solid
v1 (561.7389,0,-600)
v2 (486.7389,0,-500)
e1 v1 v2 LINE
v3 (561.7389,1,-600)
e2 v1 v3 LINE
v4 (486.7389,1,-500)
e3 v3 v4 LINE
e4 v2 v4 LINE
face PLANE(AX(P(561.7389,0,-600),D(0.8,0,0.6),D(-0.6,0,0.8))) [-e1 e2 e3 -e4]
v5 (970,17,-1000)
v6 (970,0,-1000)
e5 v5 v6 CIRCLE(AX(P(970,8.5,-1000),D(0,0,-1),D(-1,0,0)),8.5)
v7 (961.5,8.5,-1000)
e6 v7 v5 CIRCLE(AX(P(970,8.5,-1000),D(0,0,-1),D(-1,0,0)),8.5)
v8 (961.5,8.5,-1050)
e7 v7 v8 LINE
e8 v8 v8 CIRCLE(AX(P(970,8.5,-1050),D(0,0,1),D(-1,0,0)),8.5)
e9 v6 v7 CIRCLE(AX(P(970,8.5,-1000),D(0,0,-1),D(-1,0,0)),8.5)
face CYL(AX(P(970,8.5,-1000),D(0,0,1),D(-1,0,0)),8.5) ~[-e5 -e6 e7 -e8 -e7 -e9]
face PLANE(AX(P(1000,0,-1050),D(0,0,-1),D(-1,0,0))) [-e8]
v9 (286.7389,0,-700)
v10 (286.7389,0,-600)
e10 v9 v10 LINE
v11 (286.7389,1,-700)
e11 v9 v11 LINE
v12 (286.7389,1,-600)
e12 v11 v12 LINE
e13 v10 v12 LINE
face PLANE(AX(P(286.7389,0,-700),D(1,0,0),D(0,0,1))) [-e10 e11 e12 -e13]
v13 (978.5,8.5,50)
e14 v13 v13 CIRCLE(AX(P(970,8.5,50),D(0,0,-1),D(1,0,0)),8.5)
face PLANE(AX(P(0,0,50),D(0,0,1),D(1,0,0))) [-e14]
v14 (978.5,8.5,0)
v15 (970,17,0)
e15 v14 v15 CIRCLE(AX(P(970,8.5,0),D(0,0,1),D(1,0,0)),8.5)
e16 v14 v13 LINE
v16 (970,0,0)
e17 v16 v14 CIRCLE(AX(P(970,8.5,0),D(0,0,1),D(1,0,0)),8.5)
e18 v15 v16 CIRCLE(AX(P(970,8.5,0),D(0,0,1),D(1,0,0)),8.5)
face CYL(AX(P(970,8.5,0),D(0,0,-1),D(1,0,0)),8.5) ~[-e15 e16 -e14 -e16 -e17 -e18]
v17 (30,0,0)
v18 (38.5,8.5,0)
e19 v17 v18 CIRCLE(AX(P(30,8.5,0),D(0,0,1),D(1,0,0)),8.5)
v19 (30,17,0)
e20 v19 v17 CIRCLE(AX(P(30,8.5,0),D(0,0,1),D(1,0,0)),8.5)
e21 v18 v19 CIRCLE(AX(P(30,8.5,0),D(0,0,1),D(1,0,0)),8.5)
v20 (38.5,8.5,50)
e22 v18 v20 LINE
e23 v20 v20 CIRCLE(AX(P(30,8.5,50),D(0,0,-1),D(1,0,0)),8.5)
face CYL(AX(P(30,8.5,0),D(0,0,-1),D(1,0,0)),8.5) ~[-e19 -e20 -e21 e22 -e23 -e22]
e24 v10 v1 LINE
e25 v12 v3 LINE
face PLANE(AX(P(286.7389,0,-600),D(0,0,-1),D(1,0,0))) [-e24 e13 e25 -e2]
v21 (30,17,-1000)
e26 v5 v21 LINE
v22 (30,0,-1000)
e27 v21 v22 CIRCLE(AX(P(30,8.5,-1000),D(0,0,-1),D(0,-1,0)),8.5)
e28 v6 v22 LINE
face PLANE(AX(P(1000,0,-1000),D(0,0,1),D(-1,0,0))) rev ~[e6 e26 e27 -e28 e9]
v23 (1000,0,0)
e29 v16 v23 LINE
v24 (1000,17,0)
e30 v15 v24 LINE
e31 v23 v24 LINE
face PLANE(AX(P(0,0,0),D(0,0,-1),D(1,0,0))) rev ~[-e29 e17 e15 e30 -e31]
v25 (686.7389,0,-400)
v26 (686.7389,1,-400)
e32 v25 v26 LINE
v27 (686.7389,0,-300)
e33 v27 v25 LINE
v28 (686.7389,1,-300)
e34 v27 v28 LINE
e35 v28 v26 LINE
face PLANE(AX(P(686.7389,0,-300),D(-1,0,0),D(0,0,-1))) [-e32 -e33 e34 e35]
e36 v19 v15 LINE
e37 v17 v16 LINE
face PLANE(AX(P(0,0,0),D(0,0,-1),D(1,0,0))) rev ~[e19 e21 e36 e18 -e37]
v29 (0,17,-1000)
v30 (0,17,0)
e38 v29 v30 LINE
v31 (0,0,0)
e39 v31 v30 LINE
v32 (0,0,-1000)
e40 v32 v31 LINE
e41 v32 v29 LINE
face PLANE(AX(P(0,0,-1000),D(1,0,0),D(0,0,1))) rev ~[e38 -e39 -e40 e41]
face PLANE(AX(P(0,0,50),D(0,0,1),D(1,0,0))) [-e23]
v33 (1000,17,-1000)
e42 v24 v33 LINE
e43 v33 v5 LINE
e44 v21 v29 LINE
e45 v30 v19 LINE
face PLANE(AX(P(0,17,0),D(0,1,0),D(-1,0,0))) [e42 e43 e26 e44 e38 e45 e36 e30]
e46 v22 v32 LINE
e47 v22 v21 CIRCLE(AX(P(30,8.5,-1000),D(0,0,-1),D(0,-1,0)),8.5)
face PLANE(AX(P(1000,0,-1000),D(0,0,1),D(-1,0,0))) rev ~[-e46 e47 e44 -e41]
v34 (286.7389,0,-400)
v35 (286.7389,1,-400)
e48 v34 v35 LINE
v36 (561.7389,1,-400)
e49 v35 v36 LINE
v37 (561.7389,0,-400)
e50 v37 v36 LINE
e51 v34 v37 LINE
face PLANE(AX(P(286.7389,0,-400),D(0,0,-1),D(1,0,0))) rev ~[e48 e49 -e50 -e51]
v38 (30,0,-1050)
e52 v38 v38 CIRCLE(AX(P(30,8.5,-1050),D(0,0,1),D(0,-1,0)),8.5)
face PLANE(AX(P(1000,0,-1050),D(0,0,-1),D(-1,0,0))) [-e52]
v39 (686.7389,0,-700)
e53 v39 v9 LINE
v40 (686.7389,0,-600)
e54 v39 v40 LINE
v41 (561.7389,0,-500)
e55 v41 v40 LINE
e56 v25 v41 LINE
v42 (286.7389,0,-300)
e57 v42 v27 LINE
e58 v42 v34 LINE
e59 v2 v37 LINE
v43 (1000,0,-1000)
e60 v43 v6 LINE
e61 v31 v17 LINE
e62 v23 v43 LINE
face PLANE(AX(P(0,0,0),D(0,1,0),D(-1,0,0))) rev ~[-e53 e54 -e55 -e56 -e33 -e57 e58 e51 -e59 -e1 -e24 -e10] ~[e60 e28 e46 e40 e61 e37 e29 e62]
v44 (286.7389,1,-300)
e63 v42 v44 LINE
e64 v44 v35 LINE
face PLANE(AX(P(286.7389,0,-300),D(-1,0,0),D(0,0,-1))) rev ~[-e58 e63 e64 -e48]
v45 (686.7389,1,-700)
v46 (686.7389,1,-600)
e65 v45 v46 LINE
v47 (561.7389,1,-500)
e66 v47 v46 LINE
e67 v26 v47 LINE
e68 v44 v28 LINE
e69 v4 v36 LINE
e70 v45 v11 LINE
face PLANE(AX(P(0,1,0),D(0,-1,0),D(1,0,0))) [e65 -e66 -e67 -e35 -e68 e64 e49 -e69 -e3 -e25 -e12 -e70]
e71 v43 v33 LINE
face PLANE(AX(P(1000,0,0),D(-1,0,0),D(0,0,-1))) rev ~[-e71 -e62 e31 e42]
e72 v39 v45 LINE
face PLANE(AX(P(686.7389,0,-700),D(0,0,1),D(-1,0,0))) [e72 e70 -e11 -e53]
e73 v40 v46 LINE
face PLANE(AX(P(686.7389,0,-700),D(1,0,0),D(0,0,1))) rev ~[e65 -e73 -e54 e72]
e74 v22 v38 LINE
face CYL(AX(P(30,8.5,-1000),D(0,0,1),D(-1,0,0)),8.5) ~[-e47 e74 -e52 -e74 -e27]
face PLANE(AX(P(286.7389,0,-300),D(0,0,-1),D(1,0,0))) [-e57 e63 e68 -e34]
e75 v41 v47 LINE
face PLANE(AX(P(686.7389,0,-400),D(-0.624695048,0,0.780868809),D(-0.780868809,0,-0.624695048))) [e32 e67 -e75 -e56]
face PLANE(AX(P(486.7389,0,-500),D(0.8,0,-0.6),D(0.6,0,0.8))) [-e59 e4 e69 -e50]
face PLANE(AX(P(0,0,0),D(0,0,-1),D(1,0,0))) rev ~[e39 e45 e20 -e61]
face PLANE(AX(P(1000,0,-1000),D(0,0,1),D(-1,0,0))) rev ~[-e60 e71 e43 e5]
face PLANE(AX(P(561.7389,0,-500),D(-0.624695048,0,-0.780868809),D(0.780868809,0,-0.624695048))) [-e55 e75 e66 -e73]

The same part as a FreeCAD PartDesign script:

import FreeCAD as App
import Part
import Sketcher
Q = App.Units.Quantity

doc = App.newDocument("Part")
body = doc.addObject("PartDesign::Body", "Body")

# Sketch on XZ plane
sketch1 = doc.addObject("Sketcher::SketchObject", "Sketch")
body.addObject(sketch1)
sketch1.AttachmentSupport = (doc.XZ_Plane, [""])
sketch1.MapMode = "FlatFace"
sketch1.addGeometry(Part.LineSegment(App.Vector(0, -1000, 0), App.Vector(0, 0, 0)), False)
sketch1.addGeometry(Part.LineSegment(App.Vector(0, 0, 0), App.Vector(1000, 0, 0)), False)
sketch1.addGeometry(Part.LineSegment(App.Vector(1000, 0, 0), App.Vector(1000, -1000, 0)), False)
sketch1.addGeometry(Part.LineSegment(App.Vector(1000, -1000, 0), App.Vector(0, -1000, 0)), False)
sketch1.addConstraint(Sketcher.Constraint("Coincident", 0, 2, 1, 1))
sketch1.addConstraint(Sketcher.Constraint("Coincident", 1, 2, 2, 1))
sketch1.addConstraint(Sketcher.Constraint("Coincident", 2, 2, 3, 1))
sketch1.addConstraint(Sketcher.Constraint("Coincident", 3, 2, 0, 1))
sketch1.addConstraint(Sketcher.Constraint("Vertical", 0))
sketch1.addConstraint(Sketcher.Constraint("Horizontal", 1))
sketch1.addConstraint(Sketcher.Constraint("Vertical", 2))
sketch1.addConstraint(Sketcher.Constraint("Horizontal", 3))
sketch1.addConstraint(Sketcher.Constraint("Coincident", 0, 2, -1, 1))
sketch1.addConstraint(Sketcher.Constraint("Equal", 3, 0))
sketch1.addConstraint(Sketcher.Constraint("DistanceX", 1, 1, 1, 2, Q("1000 mm")))
pad1 = doc.addObject("PartDesign::Pad", "Pad")
body.addObject(pad1)
pad1.Profile = sketch1
pad1.Length = 17
pad1.Reversed = True

# Sketch on XZ plane
sketch2 = doc.addObject("Sketcher::SketchObject", "Sketch001")
body.addObject(sketch2)
sketch2.AttachmentSupport = (doc.XZ_Plane, [""])
sketch2.MapMode = "FlatFace"
sketch2.addGeometry(Part.LineSegment(App.Vector(687, -300, 0), App.Vector(287, -300, 0)), False)
sketch2.addGeometry(Part.LineSegment(App.Vector(287, -300, 0), App.Vector(287, -400, 0)), False)
sketch2.addGeometry(Part.LineSegment(App.Vector(287, -400, 0), App.Vector(562, -400, 0)), False)
sketch2.addGeometry(Part.LineSegment(App.Vector(562, -400, 0), App.Vector(487, -500, 0)), False)
sketch2.addGeometry(Part.LineSegment(App.Vector(487, -500, 0), App.Vector(562, -600, 0)), False)
sketch2.addGeometry(Part.LineSegment(App.Vector(562, -600, 0), App.Vector(287, -600, 0)), False)
sketch2.addGeometry(Part.LineSegment(App.Vector(287, -600, 0), App.Vector(287, -700, 0)), False)
sketch2.addGeometry(Part.LineSegment(App.Vector(287, -700, 0), App.Vector(687, -700, 0)), False)
sketch2.addGeometry(Part.LineSegment(App.Vector(687, -700, 0), App.Vector(687, -600, 0)), False)
sketch2.addGeometry(Part.LineSegment(App.Vector(687, -600, 0), App.Vector(562, -500, 0)), False)
sketch2.addGeometry(Part.LineSegment(App.Vector(562, -500, 0), App.Vector(687, -400, 0)), False)
sketch2.addGeometry(Part.LineSegment(App.Vector(687, -400, 0), App.Vector(687, -300, 0)), False)
sketch2.addConstraint(Sketcher.Constraint("Coincident", 0, 2, 1, 1))
sketch2.addConstraint(Sketcher.Constraint("Coincident", 1, 2, 2, 1))
sketch2.addConstraint(Sketcher.Constraint("Coincident", 2, 2, 3, 1))
sketch2.addConstraint(Sketcher.Constraint("Coincident", 3, 2, 4, 1))
sketch2.addConstraint(Sketcher.Constraint("Coincident", 4, 2, 5, 1))
sketch2.addConstraint(Sketcher.Constraint("Coincident", 5, 2, 6, 1))
sketch2.addConstraint(Sketcher.Constraint("Coincident", 6, 2, 7, 1))
sketch2.addConstraint(Sketcher.Constraint("Coincident", 7, 2, 8, 1))
sketch2.addConstraint(Sketcher.Constraint("Coincident", 8, 2, 9, 1))
sketch2.addConstraint(Sketcher.Constraint("Coincident", 9, 2, 10, 1))
sketch2.addConstraint(Sketcher.Constraint("Coincident", 10, 2, 11, 1))
sketch2.addConstraint(Sketcher.Constraint("Coincident", 11, 2, 0, 1))
sketch2.addConstraint(Sketcher.Constraint("Horizontal", 0))
sketch2.addConstraint(Sketcher.Constraint("Vertical", 1))
sketch2.addConstraint(Sketcher.Constraint("Horizontal", 2))
sketch2.addConstraint(Sketcher.Constraint("Horizontal", 5))
sketch2.addConstraint(Sketcher.Constraint("Vertical", 6))
sketch2.addConstraint(Sketcher.Constraint("Horizontal", 7))
sketch2.addConstraint(Sketcher.Constraint("Vertical", 8))
sketch2.addConstraint(Sketcher.Constraint("Vertical", 11))
sketch2.addConstraint(Sketcher.Constraint("Horizontal", 5, 2, 8, 2))
sketch2.addConstraint(Sketcher.Constraint("Horizontal", 3, 2, 9, 2))
sketch2.addConstraint(Sketcher.Constraint("Horizontal", 2, 2, 10, 2))
sketch2.addConstraint(Sketcher.Constraint("Vertical", 2, 2, 4, 2))
sketch2.addConstraint(Sketcher.Constraint("Vertical", 1, 2, 5, 2))
sketch2.addConstraint(Sketcher.Constraint("Vertical", 4, 2, 9, 2))
sketch2.addConstraint(Sketcher.Constraint("Vertical", 8, 2, 10, 2))
sketch2.addConstraint(Sketcher.Constraint("Equal", 1, 6))
sketch2.addConstraint(Sketcher.Constraint("Equal", 3, 4))
sketch2.addConstraint(Sketcher.Constraint("DistanceX", 0, 2, 0, 1, Q("400 mm")))
sketch2.addConstraint(Sketcher.Constraint("DistanceX", 2, 1, 2, 2, Q("275 mm")))
sketch2.addConstraint(Sketcher.Constraint("DistanceY", 1, 2, 1, 1, Q("100 mm")))
sketch2.addConstraint(Sketcher.Constraint("DistanceY", 0, 2, -1, 1, Q("300 mm")))
sketch2.addConstraint(Sketcher.Constraint("DistanceY", 3, 2, 2, 2, Q("100 mm")))
sketch2.addConstraint(Sketcher.Constraint("DistanceX", 1, 2, 3, 2, Q("200 mm")))
sketch2.addConstraint(Sketcher.Constraint("DistanceX", -1, 1, 0, 2, Q("286.739 mm")))
pocket1 = doc.addObject("PartDesign::Pocket", "Pocket")
body.addObject(pocket1)
pocket1.Profile = sketch2
pocket1.Length = 1

# Sketch on XY plane
sketch3 = doc.addObject("Sketcher::SketchObject", "Sketch002")
body.addObject(sketch3)
sketch3.AttachmentSupport = (doc.XY_Plane, [""])
sketch3.MapMode = "FlatFace"
sketch3.addGeometry(Part.Circle(App.Vector(30, 8, 0), App.Vector(0, 0, 1), 8), False)
sketch3.addGeometry(Part.Circle(App.Vector(970, 8, 0), App.Vector(0, 0, 1), 8), False)
sketch3.addConstraint(Sketcher.Constraint("Equal", 0, 1))
sketch3.addConstraint(Sketcher.Constraint("Horizontal", 0, 3, 1, 3))
sketch3.addConstraint(Sketcher.Constraint("Diameter", 0, Q("17 mm")))
sketch3.addConstraint(Sketcher.Constraint("DistanceX", -1, 1, 0, 3, Q("30 mm")))
sketch3.addConstraint(Sketcher.Constraint("DistanceX", -1, 1, 1, 3, Q("970 mm")))
sketch3.addConstraint(Sketcher.Constraint("DistanceY", -1, 1, 0, 3, Q("8.5 mm")))
pad2 = doc.addObject("PartDesign::Pad", "Pad001")
body.addObject(pad2)
pad2.Profile = sketch3
pad2.Length = 50

# Sketch on XY plane
sketch4 = doc.addObject("Sketcher::SketchObject", "Sketch003")
body.addObject(sketch4)
sketch4.AttachmentSupport = (doc.XY_Plane, [""])
sketch4.MapMode = "FlatFace"
sketch4.AttachmentOffset = App.Placement(App.Vector(0, 0, -1000), App.Rotation())
sketch4.addGeometry(Part.Circle(App.Vector(970, 8, 0), App.Vector(0, 0, 1), 8), False)
sketch4.addGeometry(Part.Circle(App.Vector(30, 8, 0), App.Vector(0, 0, 1), 8), False)
sketch4.addConstraint(Sketcher.Constraint("Equal", 0, 1))
sketch4.addConstraint(Sketcher.Constraint("Horizontal", 0, 3, 1, 3))
sketch4.addConstraint(Sketcher.Constraint("Diameter", 0, Q("17 mm")))
sketch4.addConstraint(Sketcher.Constraint("DistanceX", -1, 1, 1, 3, Q("30 mm")))
sketch4.addConstraint(Sketcher.Constraint("DistanceX", -1, 1, 0, 3, Q("970 mm")))
sketch4.addConstraint(Sketcher.Constraint("DistanceY", -1, 1, 0, 3, Q("8.5 mm")))
pad3 = doc.addObject("PartDesign::Pad", "Pad002")
body.addObject(pad3)
pad3.Profile = sketch4
pad3.Length = 50
pad3.Reversed = True

doc.recompute()
